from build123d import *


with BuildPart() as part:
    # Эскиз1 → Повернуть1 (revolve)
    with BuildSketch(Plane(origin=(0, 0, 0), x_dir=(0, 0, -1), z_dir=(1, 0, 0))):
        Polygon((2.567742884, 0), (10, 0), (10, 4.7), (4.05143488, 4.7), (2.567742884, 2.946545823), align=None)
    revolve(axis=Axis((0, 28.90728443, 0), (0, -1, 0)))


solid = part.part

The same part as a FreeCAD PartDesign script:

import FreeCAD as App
import Part
import Sketcher
Q = App.Units.Quantity


def add_polygon(sketch, points):
    """Adds a closed chain of lines whose ends are joined by coincident constraints."""
    first, n = sketch.GeometryCount, len(points)
    for a, b in zip(points, points[1:] + points[:1]):
        sketch.addGeometry(Part.LineSegment(App.Vector(*a, 0), App.Vector(*b, 0)), False)
    for i in range(n):
        sketch.addConstraint(Sketcher.Constraint("Coincident", first + i, 2, first + (i + 1) % n, 1))

doc = App.newDocument("Part")
params = doc.addObject("Spreadsheet::Sheet", "Params")
for row, (alias, value) in enumerate([
    ("sketch1_width", "4.7 mm"),
    ("revolution_angle", "360 deg"),
], start=1):
    params.set(f"A{row}", alias)
    params.set(f"B{row}", "=" + value)
    params.setAlias(f"B{row}", alias)

body = doc.addObject("PartDesign::Body", "Body")

sketch1 = body.newObject("Sketcher::SketchObject", "Sketch")
sketch1.AttachmentSupport = (doc.getObject("YZ_Plane"), [""])
sketch1.MapMode = "FlatFace"
add_polygon(sketch1, [(0, -2.567743), (0, -10), (4.7, -10), (4.7, -4.051435), (2.946546, -2.567743)])
sketch1.addConstraint(Sketcher.Constraint("Vertical", 0))
sketch1.addConstraint(Sketcher.Constraint("Horizontal", 1))
sketch1.addConstraint(Sketcher.Constraint("Vertical", 2))
sketch1.addConstraint(Sketcher.Constraint("Horizontal", 4))
sketch1.addConstraint(Sketcher.Constraint("PointOnObject", 0, 2, -2))
sketch1.addConstraint(Sketcher.Constraint("DistanceX", 1, 1, 1, 2, Q("4.7 mm")))
sketch1.addConstraint(Sketcher.Constraint("DistanceY", 0, 2, -1, 1, Q("10 mm")))
sketch1.addConstraint(Sketcher.Constraint("DistanceX", 4, 2, 4, 1, Q("2.946546 mm")))
sketch1.addConstraint(Sketcher.Constraint("DistanceY", 0, 2, 0, 1, Q("7.432257 mm")))
sketch1.addConstraint(Sketcher.Constraint("DistanceY", 2, 1, 2, 2, Q("5.948565 mm")))
sketch1.setExpression("Constraints[10]", "Params.sketch1_width")
revolution = body.newObject("PartDesign::Revolution", "Revolution")
revolution.Profile = sketch1
revolution.ReferenceAxis = (sketch1, ["H_Axis"])
revolution.setExpression("Angle", "Params.revolution_angle")

doc.recompute()
